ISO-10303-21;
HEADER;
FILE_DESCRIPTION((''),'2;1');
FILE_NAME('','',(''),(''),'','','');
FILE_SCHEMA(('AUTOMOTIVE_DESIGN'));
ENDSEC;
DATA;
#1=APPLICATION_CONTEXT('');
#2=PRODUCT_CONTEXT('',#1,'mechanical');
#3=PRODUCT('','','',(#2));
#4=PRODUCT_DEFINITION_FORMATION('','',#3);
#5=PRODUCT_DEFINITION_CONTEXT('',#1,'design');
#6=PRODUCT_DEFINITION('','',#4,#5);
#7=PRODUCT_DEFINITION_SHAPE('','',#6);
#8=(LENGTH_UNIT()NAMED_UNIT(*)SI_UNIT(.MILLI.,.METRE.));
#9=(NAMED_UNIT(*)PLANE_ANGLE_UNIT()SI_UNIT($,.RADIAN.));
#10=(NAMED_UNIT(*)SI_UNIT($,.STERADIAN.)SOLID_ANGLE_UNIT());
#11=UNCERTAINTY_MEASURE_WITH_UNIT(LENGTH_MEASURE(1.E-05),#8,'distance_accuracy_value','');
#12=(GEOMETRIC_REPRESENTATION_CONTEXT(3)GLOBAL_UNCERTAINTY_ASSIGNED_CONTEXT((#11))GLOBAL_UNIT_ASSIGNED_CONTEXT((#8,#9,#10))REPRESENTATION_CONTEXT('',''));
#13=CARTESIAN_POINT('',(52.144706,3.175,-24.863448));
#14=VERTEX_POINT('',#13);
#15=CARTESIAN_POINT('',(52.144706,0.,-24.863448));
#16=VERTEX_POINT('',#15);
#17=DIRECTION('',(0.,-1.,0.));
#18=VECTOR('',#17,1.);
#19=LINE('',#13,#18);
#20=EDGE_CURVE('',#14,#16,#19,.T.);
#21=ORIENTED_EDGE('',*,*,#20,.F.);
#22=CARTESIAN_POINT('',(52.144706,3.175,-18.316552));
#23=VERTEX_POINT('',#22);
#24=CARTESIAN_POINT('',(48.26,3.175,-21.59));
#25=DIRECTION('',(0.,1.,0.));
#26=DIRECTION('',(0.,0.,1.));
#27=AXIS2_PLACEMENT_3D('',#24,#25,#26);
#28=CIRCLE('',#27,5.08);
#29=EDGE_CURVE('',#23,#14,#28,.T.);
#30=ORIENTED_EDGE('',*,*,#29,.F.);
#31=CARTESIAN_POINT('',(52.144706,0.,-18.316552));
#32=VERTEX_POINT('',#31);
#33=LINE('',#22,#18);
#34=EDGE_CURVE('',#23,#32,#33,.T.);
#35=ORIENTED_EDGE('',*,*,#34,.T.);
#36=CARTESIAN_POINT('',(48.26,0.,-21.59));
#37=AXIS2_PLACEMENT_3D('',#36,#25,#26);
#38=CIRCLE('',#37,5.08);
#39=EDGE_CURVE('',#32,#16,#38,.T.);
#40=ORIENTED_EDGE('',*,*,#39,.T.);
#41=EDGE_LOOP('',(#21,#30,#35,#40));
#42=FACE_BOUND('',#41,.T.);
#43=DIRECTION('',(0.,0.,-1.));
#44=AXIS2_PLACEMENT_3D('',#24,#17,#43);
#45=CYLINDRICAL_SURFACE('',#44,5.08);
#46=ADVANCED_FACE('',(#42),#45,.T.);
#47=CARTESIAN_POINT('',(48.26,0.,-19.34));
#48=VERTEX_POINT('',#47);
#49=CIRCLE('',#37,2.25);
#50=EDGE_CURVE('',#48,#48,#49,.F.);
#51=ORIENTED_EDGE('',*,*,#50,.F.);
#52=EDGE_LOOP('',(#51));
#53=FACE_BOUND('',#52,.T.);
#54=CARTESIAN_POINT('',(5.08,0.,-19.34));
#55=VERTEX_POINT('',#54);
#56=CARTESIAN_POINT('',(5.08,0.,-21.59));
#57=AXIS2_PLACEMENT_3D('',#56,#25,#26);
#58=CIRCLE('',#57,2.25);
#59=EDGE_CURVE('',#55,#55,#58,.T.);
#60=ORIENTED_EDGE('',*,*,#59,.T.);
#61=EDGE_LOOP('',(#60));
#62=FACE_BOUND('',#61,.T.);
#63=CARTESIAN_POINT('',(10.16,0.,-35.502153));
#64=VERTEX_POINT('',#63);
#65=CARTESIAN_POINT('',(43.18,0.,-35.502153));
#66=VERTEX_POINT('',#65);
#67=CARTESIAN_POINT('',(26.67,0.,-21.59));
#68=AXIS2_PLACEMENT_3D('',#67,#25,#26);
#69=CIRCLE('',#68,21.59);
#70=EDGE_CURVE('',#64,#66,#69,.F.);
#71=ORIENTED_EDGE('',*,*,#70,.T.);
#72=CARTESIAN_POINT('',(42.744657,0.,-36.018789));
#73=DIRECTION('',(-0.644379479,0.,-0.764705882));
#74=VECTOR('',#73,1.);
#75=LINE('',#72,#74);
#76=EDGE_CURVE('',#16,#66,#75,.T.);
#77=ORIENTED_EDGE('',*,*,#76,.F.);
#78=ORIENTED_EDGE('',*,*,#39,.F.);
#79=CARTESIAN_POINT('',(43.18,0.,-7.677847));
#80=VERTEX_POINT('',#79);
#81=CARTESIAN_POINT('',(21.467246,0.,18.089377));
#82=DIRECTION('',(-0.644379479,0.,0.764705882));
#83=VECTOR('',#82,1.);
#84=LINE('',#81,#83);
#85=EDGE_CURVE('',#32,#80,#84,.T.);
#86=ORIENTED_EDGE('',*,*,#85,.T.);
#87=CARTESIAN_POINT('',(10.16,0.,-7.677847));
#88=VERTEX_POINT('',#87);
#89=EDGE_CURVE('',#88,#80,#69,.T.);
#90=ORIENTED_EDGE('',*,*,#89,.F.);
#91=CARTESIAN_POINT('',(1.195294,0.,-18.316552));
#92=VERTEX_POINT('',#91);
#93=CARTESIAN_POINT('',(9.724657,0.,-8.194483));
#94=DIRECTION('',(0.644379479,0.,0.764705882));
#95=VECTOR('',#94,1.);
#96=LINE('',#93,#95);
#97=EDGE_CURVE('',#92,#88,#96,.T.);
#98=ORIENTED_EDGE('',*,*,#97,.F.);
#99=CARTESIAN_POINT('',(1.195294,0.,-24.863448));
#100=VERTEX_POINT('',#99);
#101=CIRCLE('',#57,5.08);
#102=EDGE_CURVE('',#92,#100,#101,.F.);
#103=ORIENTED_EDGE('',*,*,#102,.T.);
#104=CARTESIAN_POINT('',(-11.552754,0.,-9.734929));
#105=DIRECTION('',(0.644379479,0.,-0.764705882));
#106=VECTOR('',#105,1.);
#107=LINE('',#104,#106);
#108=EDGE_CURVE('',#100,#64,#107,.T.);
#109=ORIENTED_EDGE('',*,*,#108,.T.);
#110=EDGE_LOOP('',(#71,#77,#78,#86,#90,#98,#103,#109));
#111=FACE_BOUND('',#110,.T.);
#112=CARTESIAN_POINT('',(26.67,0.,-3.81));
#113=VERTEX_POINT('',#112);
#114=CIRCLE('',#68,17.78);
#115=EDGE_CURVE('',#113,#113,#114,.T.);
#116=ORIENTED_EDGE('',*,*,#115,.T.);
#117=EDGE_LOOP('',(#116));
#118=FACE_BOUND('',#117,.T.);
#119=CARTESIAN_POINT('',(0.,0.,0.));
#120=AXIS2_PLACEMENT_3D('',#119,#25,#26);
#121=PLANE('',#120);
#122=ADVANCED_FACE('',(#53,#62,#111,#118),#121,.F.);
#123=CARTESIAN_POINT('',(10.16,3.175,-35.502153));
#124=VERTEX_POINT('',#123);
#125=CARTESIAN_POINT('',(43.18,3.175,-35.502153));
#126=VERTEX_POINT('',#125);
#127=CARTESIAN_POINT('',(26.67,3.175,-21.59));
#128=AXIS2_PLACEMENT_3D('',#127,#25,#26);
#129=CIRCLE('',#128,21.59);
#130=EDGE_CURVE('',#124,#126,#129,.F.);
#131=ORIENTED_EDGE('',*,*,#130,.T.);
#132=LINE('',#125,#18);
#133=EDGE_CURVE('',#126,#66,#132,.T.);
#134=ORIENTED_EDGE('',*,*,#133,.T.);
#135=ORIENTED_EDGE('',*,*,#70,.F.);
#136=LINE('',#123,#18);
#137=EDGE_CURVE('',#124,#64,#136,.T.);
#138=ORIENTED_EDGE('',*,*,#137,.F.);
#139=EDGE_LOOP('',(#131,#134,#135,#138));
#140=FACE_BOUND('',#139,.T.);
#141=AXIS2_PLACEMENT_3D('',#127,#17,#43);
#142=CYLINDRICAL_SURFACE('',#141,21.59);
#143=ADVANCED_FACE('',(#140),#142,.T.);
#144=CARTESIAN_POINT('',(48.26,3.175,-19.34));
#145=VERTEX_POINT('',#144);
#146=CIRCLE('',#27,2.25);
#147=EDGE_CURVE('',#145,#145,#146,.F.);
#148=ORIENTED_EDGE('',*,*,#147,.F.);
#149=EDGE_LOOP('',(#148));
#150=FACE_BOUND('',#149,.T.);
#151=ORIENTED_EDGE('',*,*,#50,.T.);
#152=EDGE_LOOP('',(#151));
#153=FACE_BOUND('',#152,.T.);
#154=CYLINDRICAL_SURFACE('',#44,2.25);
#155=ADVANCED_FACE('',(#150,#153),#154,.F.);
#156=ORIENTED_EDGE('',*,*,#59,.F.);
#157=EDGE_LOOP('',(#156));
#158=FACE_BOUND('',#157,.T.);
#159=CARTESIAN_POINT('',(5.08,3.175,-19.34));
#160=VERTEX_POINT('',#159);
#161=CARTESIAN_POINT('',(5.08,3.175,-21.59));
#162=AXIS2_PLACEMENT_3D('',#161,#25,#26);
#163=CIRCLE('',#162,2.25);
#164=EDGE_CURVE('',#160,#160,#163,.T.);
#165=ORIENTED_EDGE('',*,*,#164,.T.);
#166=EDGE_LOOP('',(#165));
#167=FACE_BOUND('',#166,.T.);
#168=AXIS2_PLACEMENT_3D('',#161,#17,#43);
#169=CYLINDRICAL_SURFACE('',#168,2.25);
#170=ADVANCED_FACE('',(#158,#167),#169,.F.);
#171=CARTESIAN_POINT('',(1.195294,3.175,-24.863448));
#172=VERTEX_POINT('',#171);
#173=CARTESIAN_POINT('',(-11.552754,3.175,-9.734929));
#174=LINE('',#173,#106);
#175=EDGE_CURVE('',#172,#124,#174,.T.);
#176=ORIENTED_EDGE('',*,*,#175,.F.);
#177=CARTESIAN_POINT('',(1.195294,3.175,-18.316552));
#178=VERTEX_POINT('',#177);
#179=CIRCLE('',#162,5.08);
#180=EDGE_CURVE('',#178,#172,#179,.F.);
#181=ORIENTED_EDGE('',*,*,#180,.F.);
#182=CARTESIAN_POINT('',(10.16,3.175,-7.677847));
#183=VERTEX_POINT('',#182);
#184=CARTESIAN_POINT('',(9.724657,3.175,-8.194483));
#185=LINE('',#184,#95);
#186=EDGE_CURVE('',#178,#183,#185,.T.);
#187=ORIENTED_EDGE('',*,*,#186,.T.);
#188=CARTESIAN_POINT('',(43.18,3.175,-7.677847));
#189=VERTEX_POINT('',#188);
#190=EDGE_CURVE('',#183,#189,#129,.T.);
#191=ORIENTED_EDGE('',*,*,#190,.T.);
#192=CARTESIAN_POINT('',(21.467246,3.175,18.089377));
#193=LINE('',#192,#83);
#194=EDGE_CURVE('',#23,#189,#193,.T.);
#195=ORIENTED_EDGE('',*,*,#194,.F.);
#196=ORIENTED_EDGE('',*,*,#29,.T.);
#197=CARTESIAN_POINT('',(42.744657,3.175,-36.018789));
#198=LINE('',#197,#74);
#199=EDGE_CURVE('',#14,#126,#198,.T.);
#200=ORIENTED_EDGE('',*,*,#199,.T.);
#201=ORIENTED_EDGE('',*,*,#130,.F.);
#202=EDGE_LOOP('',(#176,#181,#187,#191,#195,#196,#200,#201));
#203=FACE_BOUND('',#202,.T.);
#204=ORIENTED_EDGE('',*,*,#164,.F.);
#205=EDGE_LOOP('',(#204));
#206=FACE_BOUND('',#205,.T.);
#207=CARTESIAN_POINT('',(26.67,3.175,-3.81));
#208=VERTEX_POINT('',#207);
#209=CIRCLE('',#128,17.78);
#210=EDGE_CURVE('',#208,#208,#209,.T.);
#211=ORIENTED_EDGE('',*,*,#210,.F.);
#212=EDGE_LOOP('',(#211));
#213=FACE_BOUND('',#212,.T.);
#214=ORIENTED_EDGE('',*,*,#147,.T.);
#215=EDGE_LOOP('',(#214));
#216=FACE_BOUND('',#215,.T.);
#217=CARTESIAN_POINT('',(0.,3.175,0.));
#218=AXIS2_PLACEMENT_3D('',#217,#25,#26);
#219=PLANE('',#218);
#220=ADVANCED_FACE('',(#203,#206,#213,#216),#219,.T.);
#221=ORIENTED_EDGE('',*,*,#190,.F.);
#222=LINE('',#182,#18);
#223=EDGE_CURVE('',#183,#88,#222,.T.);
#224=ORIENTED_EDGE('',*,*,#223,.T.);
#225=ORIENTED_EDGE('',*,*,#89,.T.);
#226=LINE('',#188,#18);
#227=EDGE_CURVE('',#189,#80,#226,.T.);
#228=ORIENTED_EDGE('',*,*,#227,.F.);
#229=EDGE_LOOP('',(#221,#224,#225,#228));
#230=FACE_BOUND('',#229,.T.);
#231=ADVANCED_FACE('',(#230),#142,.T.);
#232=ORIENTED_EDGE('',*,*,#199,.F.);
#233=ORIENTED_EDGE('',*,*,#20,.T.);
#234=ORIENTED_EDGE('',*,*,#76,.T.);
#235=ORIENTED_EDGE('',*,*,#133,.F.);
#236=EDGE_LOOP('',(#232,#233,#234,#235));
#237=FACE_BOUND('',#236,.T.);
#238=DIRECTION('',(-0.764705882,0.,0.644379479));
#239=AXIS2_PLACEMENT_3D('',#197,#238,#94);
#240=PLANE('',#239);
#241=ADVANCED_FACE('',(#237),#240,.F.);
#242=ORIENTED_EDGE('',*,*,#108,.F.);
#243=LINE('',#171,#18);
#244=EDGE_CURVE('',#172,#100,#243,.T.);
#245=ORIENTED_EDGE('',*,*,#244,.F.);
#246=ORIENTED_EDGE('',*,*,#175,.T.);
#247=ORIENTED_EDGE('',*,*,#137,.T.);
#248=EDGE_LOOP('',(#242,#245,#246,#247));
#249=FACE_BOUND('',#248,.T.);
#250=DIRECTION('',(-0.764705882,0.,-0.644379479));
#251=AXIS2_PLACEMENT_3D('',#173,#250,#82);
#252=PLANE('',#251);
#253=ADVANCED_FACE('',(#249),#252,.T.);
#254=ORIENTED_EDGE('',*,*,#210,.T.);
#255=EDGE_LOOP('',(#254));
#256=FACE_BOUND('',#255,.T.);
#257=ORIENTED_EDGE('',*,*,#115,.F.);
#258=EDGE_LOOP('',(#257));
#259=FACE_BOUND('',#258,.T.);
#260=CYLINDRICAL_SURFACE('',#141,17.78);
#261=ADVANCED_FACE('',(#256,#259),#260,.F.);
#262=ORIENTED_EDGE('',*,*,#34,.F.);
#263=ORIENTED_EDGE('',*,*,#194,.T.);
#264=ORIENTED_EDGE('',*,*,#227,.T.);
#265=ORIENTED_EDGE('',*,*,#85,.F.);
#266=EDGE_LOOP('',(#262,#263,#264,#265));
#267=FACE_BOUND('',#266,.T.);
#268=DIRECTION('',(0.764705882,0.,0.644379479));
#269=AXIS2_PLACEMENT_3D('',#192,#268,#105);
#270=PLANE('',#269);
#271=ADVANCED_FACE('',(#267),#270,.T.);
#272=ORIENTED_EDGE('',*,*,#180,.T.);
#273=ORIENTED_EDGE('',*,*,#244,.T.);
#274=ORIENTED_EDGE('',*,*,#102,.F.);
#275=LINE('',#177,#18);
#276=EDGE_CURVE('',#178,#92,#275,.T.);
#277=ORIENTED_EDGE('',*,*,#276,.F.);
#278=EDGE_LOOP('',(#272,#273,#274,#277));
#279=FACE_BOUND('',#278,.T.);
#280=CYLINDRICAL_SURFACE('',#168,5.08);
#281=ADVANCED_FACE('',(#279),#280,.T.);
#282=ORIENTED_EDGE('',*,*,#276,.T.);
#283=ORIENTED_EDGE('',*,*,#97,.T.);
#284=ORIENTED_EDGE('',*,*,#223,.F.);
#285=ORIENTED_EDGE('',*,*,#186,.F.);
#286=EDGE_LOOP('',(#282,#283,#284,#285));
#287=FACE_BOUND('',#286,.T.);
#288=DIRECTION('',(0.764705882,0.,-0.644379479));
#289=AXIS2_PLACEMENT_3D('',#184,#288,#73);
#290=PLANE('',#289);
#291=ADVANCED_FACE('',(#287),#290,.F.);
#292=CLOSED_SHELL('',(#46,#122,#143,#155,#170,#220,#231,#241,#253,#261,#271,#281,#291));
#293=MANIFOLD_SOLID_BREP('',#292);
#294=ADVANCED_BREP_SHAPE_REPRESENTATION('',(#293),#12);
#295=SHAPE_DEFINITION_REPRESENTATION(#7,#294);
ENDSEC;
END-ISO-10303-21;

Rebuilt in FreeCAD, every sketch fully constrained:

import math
import FreeCAD as App
import Part
import Sketcher
from FreeCAD import Vector
Q = App.Units.Quantity

doc = App.newDocument("Part")
body = doc.addObject("PartDesign::Body", "Body")

# Sketch on XZ plane
sketch1 = body.newObject("Sketcher::SketchObject", "Sketch")
sketch1.AttachmentSupport = (doc.getObject("XZ_Plane"), [""])
sketch1.MapMode = "FlatFace"
sketch1.addGeometry(Part.LineSegment(Vector(43.2, -7.7, 0), Vector(52.1, -18.3, 0)), False)
sketch1.addGeometry(Part.ArcOfCircle(Part.Circle(Vector(48.3, -21.6, 0), Vector(0, 0, 1), 5.1), math.radians(-40), math.radians(40)), False)
sketch1.addGeometry(Part.LineSegment(Vector(52.1, -24.9, 0), Vector(43.2, -35.5, 0)), False)
sketch1.addGeometry(Part.ArcOfCircle(Part.Circle(Vector(26.7, -21.6, 0), Vector(0, 0, 1), 21.6), math.radians(-140), math.radians(-40)), False)
sketch1.addGeometry(Part.LineSegment(Vector(10.2, -35.5, 0), Vector(1.2, -24.9, 0)), False)
sketch1.addGeometry(Part.ArcOfCircle(Part.Circle(Vector(5.1, -21.6, 0), Vector(0, 0, 1), 5.1), math.radians(140), math.radians(220)), False)
sketch1.addGeometry(Part.LineSegment(Vector(1.2, -18.3, 0), Vector(10.2, -7.7, 0)), False)
sketch1.addGeometry(Part.ArcOfCircle(Part.Circle(Vector(26.7, -21.6, 0), Vector(0, 0, 1), 21.6), math.radians(40), math.radians(140)), False)
sketch1.addGeometry(Part.Circle(Vector(48.3, -21.6, 0), Vector(0, 0, 1), 2.2), False)
sketch1.addGeometry(Part.Circle(Vector(26.7, -21.6, 0), Vector(0, 0, 1), 17.8), False)
sketch1.addGeometry(Part.Circle(Vector(5.1, -21.6, 0), Vector(0, 0, 1), 2.2), False)
sketch1.addConstraint(Sketcher.Constraint("Tangent", 0, 2, 1, 2))
sketch1.addConstraint(Sketcher.Constraint("Tangent", 1, 1, 2, 1))
sketch1.addConstraint(Sketcher.Constraint("Tangent", 2, 2, 3, 2))
sketch1.addConstraint(Sketcher.Constraint("Tangent", 3, 1, 4, 1))
sketch1.addConstraint(Sketcher.Constraint("Tangent", 4, 2, 5, 2))
sketch1.addConstraint(Sketcher.Constraint("Tangent", 5, 1, 6, 1))
sketch1.addConstraint(Sketcher.Constraint("Tangent", 6, 2, 7, 2))
sketch1.addConstraint(Sketcher.Constraint("Tangent", 7, 1, 0, 1))
sketch1.addConstraint(Sketcher.Constraint("Coincident", 7, 3, 3, 3))
sketch1.addConstraint(Sketcher.Constraint("Coincident", 8, 3, 1, 3))
sketch1.addConstraint(Sketcher.Constraint("Coincident", 9, 3, 3, 3))
sketch1.addConstraint(Sketcher.Constraint("Coincident", 10, 3, 5, 3))
sketch1.addConstraint(Sketcher.Constraint("Equal", 1, 5))
sketch1.addConstraint(Sketcher.Constraint("Equal", 3, 7))
sketch1.addConstraint(Sketcher.Constraint("Equal", 8, 10))
sketch1.addConstraint(Sketcher.Constraint("Parallel", 0, 4))
sketch1.addConstraint(Sketcher.Constraint("Parallel", 2, 6))
sketch1.addConstraint(Sketcher.Constraint("Horizontal", 1, 3, 3, 3))
sketch1.addConstraint(Sketcher.Constraint("Diameter", 9, Q("1.4 in")))
sketch1.addConstraint(Sketcher.Constraint("Radius", 1, Q("0.2 in")))
sketch1.addConstraint(Sketcher.Constraint("Radius", 3, Q("0.85 in")))
sketch1.addConstraint(Sketcher.Constraint("DistanceX", -1, 1, 1, 3, Q("1.9 in")))
sketch1.addConstraint(Sketcher.Constraint("DistanceX", -1, 1, 5, 3, Q("0.2 in")))
sketch1.addConstraint(Sketcher.Constraint("Diameter", 8, 4.5))
sketch1.addConstraint(Sketcher.Constraint("DistanceY", 1, 3, -1, 1, Q("0.85 in")))
pad1 = body.newObject("PartDesign::Pad", "Pad")
pad1.Profile = sketch1
pad1.Length = Q("0.125 in")
pad1.Reversed = True

doc.recompute()
